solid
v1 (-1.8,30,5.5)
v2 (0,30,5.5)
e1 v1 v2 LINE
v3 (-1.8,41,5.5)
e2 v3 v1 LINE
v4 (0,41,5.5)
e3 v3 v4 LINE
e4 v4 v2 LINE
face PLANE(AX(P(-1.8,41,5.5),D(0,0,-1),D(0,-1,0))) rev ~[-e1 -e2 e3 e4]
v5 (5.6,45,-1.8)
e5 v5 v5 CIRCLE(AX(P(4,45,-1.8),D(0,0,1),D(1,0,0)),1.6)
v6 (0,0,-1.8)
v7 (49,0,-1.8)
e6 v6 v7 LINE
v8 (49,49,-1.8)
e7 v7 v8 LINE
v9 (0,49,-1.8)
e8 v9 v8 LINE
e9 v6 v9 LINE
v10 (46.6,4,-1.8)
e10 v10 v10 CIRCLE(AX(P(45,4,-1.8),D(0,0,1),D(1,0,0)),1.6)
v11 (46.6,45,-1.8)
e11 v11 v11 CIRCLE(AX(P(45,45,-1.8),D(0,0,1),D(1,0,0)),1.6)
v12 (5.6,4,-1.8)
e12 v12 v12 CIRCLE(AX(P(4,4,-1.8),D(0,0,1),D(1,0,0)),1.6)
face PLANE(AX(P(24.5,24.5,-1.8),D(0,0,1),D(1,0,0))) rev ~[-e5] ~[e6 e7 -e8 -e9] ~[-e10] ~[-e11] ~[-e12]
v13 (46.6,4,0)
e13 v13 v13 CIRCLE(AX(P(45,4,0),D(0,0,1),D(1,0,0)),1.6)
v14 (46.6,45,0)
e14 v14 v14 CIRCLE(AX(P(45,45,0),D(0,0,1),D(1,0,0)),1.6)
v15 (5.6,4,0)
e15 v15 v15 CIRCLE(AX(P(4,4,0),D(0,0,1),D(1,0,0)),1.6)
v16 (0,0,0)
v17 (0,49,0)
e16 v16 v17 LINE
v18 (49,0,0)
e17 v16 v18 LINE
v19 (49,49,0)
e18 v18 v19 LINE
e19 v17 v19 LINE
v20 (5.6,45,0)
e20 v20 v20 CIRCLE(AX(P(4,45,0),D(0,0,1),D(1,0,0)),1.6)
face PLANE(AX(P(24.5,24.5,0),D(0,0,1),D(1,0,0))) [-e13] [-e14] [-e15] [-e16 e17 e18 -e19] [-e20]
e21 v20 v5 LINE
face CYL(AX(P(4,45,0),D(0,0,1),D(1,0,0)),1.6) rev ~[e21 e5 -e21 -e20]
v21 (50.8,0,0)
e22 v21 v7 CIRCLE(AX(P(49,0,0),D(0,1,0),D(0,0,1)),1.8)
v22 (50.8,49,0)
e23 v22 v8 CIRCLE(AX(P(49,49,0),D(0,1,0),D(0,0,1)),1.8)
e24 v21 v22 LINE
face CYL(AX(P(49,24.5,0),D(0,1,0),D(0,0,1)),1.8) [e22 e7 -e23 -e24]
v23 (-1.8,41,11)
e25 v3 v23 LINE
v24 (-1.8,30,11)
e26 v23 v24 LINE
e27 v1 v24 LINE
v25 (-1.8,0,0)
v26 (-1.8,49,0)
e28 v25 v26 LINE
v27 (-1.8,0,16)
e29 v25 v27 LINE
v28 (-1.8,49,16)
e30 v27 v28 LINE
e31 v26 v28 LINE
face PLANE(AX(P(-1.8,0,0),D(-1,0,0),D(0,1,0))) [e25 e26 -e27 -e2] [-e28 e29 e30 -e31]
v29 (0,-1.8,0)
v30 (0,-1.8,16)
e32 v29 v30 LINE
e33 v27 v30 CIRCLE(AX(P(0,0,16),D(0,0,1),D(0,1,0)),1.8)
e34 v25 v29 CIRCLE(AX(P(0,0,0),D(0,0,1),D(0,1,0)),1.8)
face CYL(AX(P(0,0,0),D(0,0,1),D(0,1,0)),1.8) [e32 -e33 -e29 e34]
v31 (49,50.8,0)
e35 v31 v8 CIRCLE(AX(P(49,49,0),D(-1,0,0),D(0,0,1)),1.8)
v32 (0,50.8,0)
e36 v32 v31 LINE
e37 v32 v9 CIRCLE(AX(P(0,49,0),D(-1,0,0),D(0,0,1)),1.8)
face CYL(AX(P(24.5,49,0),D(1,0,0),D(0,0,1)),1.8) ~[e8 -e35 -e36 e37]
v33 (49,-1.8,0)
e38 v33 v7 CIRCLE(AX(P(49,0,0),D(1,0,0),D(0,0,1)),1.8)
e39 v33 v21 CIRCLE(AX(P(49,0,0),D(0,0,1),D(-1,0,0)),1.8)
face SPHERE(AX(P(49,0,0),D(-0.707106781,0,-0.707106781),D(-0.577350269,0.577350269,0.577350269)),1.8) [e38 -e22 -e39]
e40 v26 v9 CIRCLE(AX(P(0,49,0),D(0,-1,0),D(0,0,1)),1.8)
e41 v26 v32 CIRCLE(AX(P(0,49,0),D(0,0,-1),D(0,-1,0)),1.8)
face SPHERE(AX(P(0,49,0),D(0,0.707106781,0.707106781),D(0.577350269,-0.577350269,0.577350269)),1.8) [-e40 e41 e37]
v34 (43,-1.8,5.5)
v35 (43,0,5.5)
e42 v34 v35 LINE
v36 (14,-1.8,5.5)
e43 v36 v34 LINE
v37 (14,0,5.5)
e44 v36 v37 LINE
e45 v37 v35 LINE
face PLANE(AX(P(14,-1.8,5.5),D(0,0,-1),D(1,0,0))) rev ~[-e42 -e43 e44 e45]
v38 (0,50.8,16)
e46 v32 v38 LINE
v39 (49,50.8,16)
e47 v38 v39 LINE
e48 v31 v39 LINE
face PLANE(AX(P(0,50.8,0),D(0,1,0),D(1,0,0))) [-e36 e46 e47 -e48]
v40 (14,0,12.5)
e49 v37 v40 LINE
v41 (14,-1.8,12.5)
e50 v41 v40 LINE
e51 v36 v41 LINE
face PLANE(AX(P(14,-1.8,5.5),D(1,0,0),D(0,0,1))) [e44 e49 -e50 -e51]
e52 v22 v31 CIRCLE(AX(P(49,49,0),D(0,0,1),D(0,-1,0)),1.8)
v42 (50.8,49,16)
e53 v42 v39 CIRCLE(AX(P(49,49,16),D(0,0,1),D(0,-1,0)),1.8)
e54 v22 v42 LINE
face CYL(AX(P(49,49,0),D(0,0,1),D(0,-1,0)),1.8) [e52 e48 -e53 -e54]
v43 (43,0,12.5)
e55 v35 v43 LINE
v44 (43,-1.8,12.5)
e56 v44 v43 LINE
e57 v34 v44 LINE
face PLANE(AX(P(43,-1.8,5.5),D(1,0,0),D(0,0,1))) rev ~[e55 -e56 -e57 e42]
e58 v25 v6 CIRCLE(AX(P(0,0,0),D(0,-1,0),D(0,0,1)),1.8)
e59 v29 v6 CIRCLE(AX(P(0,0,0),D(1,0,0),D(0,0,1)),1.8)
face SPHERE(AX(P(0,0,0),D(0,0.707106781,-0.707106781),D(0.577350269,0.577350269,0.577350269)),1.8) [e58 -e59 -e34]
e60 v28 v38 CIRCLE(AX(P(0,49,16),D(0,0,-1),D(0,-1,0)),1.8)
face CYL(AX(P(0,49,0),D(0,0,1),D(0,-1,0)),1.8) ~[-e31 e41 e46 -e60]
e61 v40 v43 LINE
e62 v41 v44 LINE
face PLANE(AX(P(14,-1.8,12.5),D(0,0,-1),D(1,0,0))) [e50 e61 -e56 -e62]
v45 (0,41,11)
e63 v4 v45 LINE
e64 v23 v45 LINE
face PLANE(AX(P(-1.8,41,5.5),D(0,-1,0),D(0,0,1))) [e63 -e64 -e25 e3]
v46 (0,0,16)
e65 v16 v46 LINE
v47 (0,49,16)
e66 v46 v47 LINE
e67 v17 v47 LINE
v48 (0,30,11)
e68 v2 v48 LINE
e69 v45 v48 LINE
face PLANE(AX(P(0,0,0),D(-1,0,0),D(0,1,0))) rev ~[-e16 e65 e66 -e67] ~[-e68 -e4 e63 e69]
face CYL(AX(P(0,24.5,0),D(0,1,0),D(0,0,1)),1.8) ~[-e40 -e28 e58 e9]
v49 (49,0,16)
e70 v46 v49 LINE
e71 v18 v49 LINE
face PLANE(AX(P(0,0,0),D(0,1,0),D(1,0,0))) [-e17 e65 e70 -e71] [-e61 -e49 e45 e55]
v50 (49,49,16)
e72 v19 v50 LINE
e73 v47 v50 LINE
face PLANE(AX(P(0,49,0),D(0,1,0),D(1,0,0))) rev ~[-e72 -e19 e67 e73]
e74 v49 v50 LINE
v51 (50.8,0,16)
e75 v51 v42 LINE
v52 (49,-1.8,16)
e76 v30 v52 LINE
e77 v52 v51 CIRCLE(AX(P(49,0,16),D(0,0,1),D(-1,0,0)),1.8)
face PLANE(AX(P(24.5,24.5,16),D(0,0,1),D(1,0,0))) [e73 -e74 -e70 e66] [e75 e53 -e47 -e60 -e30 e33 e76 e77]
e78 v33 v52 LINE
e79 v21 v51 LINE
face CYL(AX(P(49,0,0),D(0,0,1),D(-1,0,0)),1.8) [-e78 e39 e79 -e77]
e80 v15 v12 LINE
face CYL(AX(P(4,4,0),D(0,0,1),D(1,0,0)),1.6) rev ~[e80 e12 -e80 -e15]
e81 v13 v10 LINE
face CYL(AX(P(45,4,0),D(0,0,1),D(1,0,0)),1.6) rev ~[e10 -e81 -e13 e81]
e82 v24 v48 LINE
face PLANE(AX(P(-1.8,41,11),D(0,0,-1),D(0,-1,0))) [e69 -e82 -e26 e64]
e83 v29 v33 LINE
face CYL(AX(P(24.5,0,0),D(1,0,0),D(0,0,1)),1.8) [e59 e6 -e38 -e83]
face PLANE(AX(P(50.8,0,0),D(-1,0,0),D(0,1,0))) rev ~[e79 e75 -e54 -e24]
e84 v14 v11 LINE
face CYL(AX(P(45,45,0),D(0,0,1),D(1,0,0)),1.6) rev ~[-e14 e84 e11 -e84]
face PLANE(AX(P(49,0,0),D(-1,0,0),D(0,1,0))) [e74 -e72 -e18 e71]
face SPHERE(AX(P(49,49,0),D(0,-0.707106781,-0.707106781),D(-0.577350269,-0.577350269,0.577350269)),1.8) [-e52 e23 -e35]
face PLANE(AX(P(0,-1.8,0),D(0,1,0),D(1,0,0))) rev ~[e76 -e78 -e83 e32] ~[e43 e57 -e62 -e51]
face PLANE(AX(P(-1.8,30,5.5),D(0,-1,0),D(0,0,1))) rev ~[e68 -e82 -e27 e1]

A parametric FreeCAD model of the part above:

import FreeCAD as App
import Part
import Sketcher
from FreeCAD import Vector


def faces_at(feature, points):
    """Names of the faces that lie closest to the given points."""
    faces = feature.Shape.Faces
    near = lambda p: min(range(len(faces)), key=lambda i: faces[i].distToShape(Part.Vertex(*p))[0])
    return sorted({f"Face{near(p) + 1}" for p in points})


def add_polygon(sketch, points):
    """Adds a closed chain of lines whose ends are joined by coincident constraints."""
    first, n = sketch.GeometryCount, len(points)
    for a, b in zip(points, points[1:] + points[:1]):
        sketch.addGeometry(Part.LineSegment(App.Vector(*a, 0), App.Vector(*b, 0)), False)
    for i in range(n):
        sketch.addConstraint(Sketcher.Constraint("Coincident", first + i, 2, first + (i + 1) % n, 1))

doc = App.newDocument("Part")
body = doc.addObject("PartDesign::Body", "Body")

# Sketch on XY plane
sketch1 = body.newObject("Sketcher::SketchObject", "Sketch")
sketch1.AttachmentSupport = (doc.getObject("XY_Plane"), [""])
sketch1.MapMode = "FlatFace"
add_polygon(sketch1, [(0, 49), (0, 0), (49, 0), (49, 49)])  # lines 0-3
sketch1.addConstraint([
    Sketcher.Constraint("Vertical", 0),
    Sketcher.Constraint("Horizontal", 1),
    Sketcher.Constraint("Vertical", 2),
    Sketcher.Constraint("Horizontal", 3),
    Sketcher.Constraint("Coincident", 0, 2, -1, 1),
    Sketcher.Constraint("Equal", 3, 0),
    Sketcher.Constraint("DistanceX", 1, 1, 1, 2, 49.0),
])
pad1 = body.newObject("PartDesign::Pad", "Pad")
pad1.Profile = sketch1
pad1.Length = 16
doc.recompute()

thickness = body.newObject("PartDesign::Thickness", "Thickness")
thickness.Base = (pad1, faces_at(pad1, [(24.5, 24.5, 16)]))
thickness.Value = 1.8
thickness.Reversed = False
thickness.Join = "Arc"

# Sketch on XY plane
sketch2 = body.newObject("Sketcher::SketchObject", "Sketch001")
sketch2.AttachmentSupport = (doc.getObject("XY_Plane"), [""])
sketch2.MapMode = "FlatFace"
sketch2.addGeometry([
    Part.Circle(Vector(4, 45, 0), Vector(0, 0, 1), 1.6),
    Part.Circle(Vector(4, 4, 0), Vector(0, 0, 1), 1.6),
    Part.Circle(Vector(45, 45, 0), Vector(0, 0, 1), 1.6),
    Part.Circle(Vector(45, 4, 0), Vector(0, 0, 1), 1.6),
], False)
sketch2.addConstraint([
    Sketcher.Constraint("Equal", 0, 1),
    Sketcher.Constraint("Equal", 1, 2),
    Sketcher.Constraint("Equal", 2, 3),
    Sketcher.Constraint("Horizontal", 0, 3, 2, 3),
    Sketcher.Constraint("Horizontal", 1, 3, 3, 3),
    Sketcher.Constraint("Vertical", 0, 3, 1, 3),
    Sketcher.Constraint("Vertical", 2, 3, 3, 3),
    Sketcher.Constraint("Diameter", 0, 3.2),
    Sketcher.Constraint("DistanceX", -1, 1, 0, 3, 4.0),
    Sketcher.Constraint("DistanceY", -1, 1, 0, 3, 45.0),
    Sketcher.Constraint("DistanceY", -1, 1, 1, 3, 4.0),
    Sketcher.Constraint("DistanceX", -1, 1, 2, 3, 45.0),
])
pocket1 = body.newObject("PartDesign::Pocket", "Pocket")
pocket1.Profile = sketch2
pocket1.Type = "ThroughAll"

# Sketch on XZ plane
sketch3 = body.newObject("Sketcher::SketchObject", "Sketch002")
sketch3.AttachmentSupport = (doc.getObject("XZ_Plane"), [""])
sketch3.MapMode = "FlatFace"
sketch3.AttachmentOffset = App.Placement(Vector(0, 0, 1.8), App.Rotation())
add_polygon(sketch3, [(14, 12.5), (14, 5.5), (43, 5.5), (43, 12.5)])  # lines 0-3
sketch3.addConstraint([
    Sketcher.Constraint("Vertical", 0),
    Sketcher.Constraint("Horizontal", 1),
    Sketcher.Constraint("Vertical", 2),
    Sketcher.Constraint("Horizontal", 3),
    Sketcher.Constraint("DistanceX", 1, 1, 1, 2, 29.0),
    Sketcher.Constraint("DistanceY", 0, 2, 0, 1, 7.0),
    Sketcher.Constraint("DistanceX", -1, 1, 0, 2, 14.0),
    Sketcher.Constraint("DistanceY", -1, 1, 0, 2, 5.5),
])
pocket2 = body.newObject("PartDesign::Pocket", "Pocket001")
pocket2.Profile = sketch3
pocket2.Length = 1.8

# Sketch on YZ plane
sketch4 = body.newObject("Sketcher::SketchObject", "Sketch003")
sketch4.AttachmentSupport = (doc.getObject("YZ_Plane"), [""])
sketch4.MapMode = "FlatFace"
sketch4.AttachmentOffset = App.Placement(Vector(0, 0, -1.8), App.Rotation())
add_polygon(sketch4, [(41, 11), (41, 5.5), (30, 5.5), (30, 11)])  # lines 0-3
sketch4.addConstraint([
    Sketcher.Constraint("Vertical", 0),
    Sketcher.Constraint("Horizontal", 1),
    Sketcher.Constraint("Vertical", 2),
    Sketcher.Constraint("Horizontal", 3),
    Sketcher.Constraint("DistanceX", 1, 2, 1, 1, 11.0),
    Sketcher.Constraint("DistanceY", 0, 2, 0, 1, 5.5),
    Sketcher.Constraint("DistanceX", -1, 1, 0, 2, 41.0),
    Sketcher.Constraint("DistanceY", -1, 1, 2, 2, 11.0),
])
pocket3 = body.newObject("PartDesign::Pocket", "Pocket002")
pocket3.Profile = sketch4
pocket3.Length = 1.8
pocket3.Reversed = True

doc.recompute()
